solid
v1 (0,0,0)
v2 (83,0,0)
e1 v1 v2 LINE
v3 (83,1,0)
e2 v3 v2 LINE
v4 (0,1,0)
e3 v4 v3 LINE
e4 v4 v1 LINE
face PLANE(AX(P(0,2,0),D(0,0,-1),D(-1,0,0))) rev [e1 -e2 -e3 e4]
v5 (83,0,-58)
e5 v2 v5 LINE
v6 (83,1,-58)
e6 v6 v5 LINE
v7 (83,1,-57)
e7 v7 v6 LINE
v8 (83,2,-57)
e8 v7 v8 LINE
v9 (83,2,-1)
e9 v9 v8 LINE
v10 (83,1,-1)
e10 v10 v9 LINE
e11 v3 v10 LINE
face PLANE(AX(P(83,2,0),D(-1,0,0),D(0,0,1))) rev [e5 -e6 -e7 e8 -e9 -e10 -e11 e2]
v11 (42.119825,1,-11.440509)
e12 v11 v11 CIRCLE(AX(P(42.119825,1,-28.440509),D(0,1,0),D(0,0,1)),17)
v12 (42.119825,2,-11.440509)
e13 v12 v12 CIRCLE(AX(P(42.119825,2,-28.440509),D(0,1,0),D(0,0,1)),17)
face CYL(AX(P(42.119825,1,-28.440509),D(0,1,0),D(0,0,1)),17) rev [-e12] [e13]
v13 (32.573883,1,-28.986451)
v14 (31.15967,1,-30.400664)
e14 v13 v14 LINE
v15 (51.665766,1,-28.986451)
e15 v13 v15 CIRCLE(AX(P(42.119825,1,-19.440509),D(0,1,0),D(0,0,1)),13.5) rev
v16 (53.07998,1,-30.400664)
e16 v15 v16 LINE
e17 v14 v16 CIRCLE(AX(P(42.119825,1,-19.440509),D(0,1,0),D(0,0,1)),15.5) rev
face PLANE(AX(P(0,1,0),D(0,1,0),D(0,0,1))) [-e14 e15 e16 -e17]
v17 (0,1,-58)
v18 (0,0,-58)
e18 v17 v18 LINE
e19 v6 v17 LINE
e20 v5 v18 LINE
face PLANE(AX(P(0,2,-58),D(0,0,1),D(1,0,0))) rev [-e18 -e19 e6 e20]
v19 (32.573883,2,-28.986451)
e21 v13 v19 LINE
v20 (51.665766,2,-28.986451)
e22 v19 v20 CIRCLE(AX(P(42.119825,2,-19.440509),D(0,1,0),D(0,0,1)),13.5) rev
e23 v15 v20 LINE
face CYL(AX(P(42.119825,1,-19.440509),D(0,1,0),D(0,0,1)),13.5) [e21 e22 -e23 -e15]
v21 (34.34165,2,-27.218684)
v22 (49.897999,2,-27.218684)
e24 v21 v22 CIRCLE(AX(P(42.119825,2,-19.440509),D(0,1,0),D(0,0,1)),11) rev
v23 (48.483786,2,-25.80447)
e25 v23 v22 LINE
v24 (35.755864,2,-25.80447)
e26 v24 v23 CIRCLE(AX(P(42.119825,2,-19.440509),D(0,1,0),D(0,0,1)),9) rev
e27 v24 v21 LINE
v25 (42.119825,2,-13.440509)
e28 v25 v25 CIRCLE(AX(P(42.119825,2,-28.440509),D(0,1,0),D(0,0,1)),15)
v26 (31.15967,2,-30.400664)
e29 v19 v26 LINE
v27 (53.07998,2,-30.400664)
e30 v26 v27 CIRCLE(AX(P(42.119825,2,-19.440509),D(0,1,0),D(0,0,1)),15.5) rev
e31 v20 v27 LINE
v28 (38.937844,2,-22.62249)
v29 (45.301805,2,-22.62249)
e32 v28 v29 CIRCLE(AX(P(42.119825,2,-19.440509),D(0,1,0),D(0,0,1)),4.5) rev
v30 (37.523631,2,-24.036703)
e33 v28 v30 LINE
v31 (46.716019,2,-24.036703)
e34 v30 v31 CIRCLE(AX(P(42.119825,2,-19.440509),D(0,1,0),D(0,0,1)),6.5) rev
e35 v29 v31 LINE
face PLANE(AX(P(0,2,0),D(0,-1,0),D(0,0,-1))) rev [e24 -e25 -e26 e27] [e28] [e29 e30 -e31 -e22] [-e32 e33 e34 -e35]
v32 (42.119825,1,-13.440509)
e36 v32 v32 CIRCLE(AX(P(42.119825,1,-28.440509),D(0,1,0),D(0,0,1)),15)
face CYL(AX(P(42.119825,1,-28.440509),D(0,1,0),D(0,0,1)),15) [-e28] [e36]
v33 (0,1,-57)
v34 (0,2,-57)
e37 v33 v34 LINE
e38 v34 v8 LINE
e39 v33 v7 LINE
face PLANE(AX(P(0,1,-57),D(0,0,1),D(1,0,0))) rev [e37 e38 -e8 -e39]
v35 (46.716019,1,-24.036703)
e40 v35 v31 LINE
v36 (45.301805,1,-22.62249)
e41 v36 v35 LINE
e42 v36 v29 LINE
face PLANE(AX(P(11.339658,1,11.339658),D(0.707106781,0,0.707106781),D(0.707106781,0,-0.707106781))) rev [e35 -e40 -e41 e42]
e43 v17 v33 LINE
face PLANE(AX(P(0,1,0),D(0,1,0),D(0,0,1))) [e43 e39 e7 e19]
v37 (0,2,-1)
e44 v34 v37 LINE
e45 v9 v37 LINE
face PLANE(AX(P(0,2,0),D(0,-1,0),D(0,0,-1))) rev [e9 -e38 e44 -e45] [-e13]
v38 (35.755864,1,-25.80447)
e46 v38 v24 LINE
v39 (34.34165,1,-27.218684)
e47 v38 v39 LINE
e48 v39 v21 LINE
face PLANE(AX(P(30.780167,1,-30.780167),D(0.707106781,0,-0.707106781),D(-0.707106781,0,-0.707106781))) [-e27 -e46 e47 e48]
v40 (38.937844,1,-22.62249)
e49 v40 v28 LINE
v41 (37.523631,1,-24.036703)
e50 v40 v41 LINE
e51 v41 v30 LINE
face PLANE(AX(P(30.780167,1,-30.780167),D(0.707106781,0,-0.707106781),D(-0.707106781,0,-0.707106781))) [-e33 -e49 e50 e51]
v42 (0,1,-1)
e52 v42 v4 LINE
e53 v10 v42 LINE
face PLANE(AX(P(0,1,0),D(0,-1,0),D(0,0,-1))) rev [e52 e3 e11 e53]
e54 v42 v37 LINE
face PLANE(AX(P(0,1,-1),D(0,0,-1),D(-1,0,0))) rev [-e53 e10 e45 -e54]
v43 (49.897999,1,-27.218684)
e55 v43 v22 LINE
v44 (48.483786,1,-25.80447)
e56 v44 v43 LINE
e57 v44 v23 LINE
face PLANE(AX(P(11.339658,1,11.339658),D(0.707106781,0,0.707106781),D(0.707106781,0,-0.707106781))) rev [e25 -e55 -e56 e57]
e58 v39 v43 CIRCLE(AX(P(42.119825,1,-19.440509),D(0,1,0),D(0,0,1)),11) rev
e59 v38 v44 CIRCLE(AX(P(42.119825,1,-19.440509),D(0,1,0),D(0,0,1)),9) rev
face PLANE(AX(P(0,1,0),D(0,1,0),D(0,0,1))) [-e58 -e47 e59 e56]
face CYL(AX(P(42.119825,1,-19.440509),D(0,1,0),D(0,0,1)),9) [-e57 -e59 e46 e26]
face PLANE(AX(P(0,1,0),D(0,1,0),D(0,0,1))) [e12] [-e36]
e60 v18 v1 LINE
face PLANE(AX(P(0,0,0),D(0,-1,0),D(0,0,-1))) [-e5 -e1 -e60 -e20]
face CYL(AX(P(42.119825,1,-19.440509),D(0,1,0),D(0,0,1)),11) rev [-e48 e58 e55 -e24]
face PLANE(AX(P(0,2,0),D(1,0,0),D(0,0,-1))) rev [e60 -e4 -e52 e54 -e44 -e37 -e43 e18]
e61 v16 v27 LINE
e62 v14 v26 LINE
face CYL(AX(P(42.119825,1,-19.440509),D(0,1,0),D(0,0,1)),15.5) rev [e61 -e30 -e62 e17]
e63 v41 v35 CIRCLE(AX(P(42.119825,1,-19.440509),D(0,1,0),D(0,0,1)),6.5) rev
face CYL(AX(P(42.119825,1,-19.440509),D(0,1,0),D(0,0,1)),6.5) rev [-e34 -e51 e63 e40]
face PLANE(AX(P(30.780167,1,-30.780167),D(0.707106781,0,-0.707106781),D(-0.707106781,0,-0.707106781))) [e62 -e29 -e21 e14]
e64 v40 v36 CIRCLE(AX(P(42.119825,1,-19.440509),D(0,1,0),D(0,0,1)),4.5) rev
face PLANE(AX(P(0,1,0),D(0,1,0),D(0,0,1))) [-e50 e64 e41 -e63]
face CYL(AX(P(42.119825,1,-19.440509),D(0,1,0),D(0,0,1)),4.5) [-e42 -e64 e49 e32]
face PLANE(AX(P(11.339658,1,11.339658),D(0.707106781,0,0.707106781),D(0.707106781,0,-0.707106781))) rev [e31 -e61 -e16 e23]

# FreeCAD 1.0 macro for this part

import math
import FreeCAD as App
import Part
import Sketcher

V = App.Vector
Q = App.Units.Quantity

doc = App.newDocument("Part")
body = doc.addObject("PartDesign::Body", "Body")

# Sketch on XZ plane
sketch1 = body.newObject("Sketcher::SketchObject", "Sketch")
sketch1.AttachmentSupport = (doc.getObject("XZ_Plane"), [""])
sketch1.MapMode = "FlatFace"
sketch1.addGeometry(Part.LineSegment(V(0, -58, 0), V(0, 0, 0)), False)
sketch1.addGeometry(Part.LineSegment(V(0, 0, 0), V(83, 0, 0)), False)
sketch1.addGeometry(Part.LineSegment(V(83, 0, 0), V(83, -58, 0)), False)
sketch1.addGeometry(Part.LineSegment(V(83, -58, 0), V(0, -58, 0)), False)
sketch1.addConstraint(Sketcher.Constraint("Coincident", 0, 2, 1, 1))
sketch1.addConstraint(Sketcher.Constraint("Coincident", 1, 2, 2, 1))
sketch1.addConstraint(Sketcher.Constraint("Coincident", 2, 2, 3, 1))
sketch1.addConstraint(Sketcher.Constraint("Coincident", 3, 2, 0, 1))
sketch1.addConstraint(Sketcher.Constraint("Vertical", 0))
sketch1.addConstraint(Sketcher.Constraint("Horizontal", 1))
sketch1.addConstraint(Sketcher.Constraint("Vertical", 2))
sketch1.addConstraint(Sketcher.Constraint("Horizontal", 3))
sketch1.addConstraint(Sketcher.Constraint("Coincident", 0, 2, -1, 1))
sketch1.addConstraint(Sketcher.Constraint("DistanceX", 1, 1, 1, 2, Q("83 mm")))
sketch1.addConstraint(Sketcher.Constraint("DistanceY", 0, 1, 0, 2, Q("58 mm")))
pad1 = body.newObject("PartDesign::Pad", "Pad")
pad1.Profile = sketch1
pad1.Length = 2
pad1.Reversed = True

# Sketch on XZ plane
sketch2 = body.newObject("Sketcher::SketchObject", "Sketch001")
sketch2.AttachmentSupport = (doc.getObject("XZ_Plane"), [""])
sketch2.MapMode = "FlatFace"
sketch2.AttachmentOffset = App.Placement(V(0, 0, -2), App.Rotation())
sketch2.addGeometry(Part.LineSegment(V(0, -58, 0), V(0, -57, 0)), False)
sketch2.addGeometry(Part.LineSegment(V(0, -57, 0), V(83, -57, 0)), False)
sketch2.addGeometry(Part.LineSegment(V(83, -57, 0), V(83, -58, 0)), False)
sketch2.addGeometry(Part.LineSegment(V(83, -58, 0), V(0, -58, 0)), False)
sketch2.addGeometry(Part.LineSegment(V(0, -1, 0), V(0, 0, 0)), False)
sketch2.addGeometry(Part.LineSegment(V(0, 0, 0), V(83, 0, 0)), False)
sketch2.addGeometry(Part.LineSegment(V(83, 0, 0), V(83, -1, 0)), False)
sketch2.addGeometry(Part.LineSegment(V(83, -1, 0), V(0, -1, 0)), False)
sketch2.addConstraint(Sketcher.Constraint("Coincident", 0, 2, 1, 1))
sketch2.addConstraint(Sketcher.Constraint("Coincident", 1, 2, 2, 1))
sketch2.addConstraint(Sketcher.Constraint("Coincident", 2, 2, 3, 1))
sketch2.addConstraint(Sketcher.Constraint("Coincident", 3, 2, 0, 1))
sketch2.addConstraint(Sketcher.Constraint("Coincident", 4, 2, 5, 1))
sketch2.addConstraint(Sketcher.Constraint("Coincident", 5, 2, 6, 1))
sketch2.addConstraint(Sketcher.Constraint("Coincident", 6, 2, 7, 1))
sketch2.addConstraint(Sketcher.Constraint("Coincident", 7, 2, 4, 1))
sketch2.addConstraint(Sketcher.Constraint("Vertical", 0))
sketch2.addConstraint(Sketcher.Constraint("Horizontal", 1))
sketch2.addConstraint(Sketcher.Constraint("Vertical", 2))
sketch2.addConstraint(Sketcher.Constraint("Horizontal", 3))
sketch2.addConstraint(Sketcher.Constraint("Vertical", 4))
sketch2.addConstraint(Sketcher.Constraint("Horizontal", 5))
sketch2.addConstraint(Sketcher.Constraint("Vertical", 6))
sketch2.addConstraint(Sketcher.Constraint("Horizontal", 7))
sketch2.addConstraint(Sketcher.Constraint("Coincident", 4, 2, -1, 1))
sketch2.addConstraint(Sketcher.Constraint("PointOnObject", 0, 2, -2))
sketch2.addConstraint(Sketcher.Constraint("Vertical", 2, 2, 5, 2))
sketch2.addConstraint(Sketcher.Constraint("Equal", 2, 4))
sketch2.addConstraint(Sketcher.Constraint("DistanceX", 1, 1, 1, 2, Q("83 mm")))
sketch2.addConstraint(Sketcher.Constraint("DistanceY", 0, 1, 0, 2, Q("1 mm")))
sketch2.addConstraint(Sketcher.Constraint("DistanceY", 0, 2, -1, 1, Q("57 mm")))
pocket1 = body.newObject("PartDesign::Pocket", "Pocket")
pocket1.Profile = sketch2
pocket1.Length = 1
pocket1.Reversed = True

# Sketch on XZ plane
sketch3 = body.newObject("Sketcher::SketchObject", "Sketch002")
sketch3.AttachmentSupport = (doc.getObject("XZ_Plane"), [""])
sketch3.MapMode = "FlatFace"
sketch3.AttachmentOffset = App.Placement(V(0, 0, -2), App.Rotation())
sketch3.addGeometry(Part.Circle(V(42.1, -28.4, 0), V(0, 0, 1), 17), False)
sketch3.addGeometry(Part.Circle(V(42.1, -28.4, 0), V(0, 0, 1), 15), False)
sketch3.addGeometry(Part.ArcOfCircle(Part.Circle(V(42.1, -19.4, 0), V(0, 0, 1), 15.5), math.radians(-135), math.radians(-45)), False)
sketch3.addGeometry(Part.LineSegment(V(31.2, -30.4, 0), V(32.6, -29, 0)), False)
sketch3.addGeometry(Part.ArcOfCircle(Part.Circle(V(42.1, -19.4, 0), V(0, 0, 1), 13.5), math.radians(-135), math.radians(-45)), False)
sketch3.addGeometry(Part.LineSegment(V(51.7, -29, 0), V(53.1, -30.4, 0)), False)
sketch3.addGeometry(Part.LineSegment(V(34.3, -27.2, 0), V(35.8, -25.8, 0)), False)
sketch3.addGeometry(Part.ArcOfCircle(Part.Circle(V(42.1, -19.4, 0), V(0, 0, 1), 9), math.radians(-135), math.radians(-45)), False)
sketch3.addGeometry(Part.LineSegment(V(48.5, -25.8, 0), V(49.9, -27.2, 0)), False)
sketch3.addGeometry(Part.ArcOfCircle(Part.Circle(V(42.1, -19.4, 0), V(0, 0, 1), 11), math.radians(-135), math.radians(-45)), False)
sketch3.addGeometry(Part.LineSegment(V(37.5, -24, 0), V(38.9, -22.6, 0)), False)
sketch3.addGeometry(Part.ArcOfCircle(Part.Circle(V(42.1, -19.4, 0), V(0, 0, 1), 4.5), math.radians(-135), math.radians(-45)), False)
sketch3.addGeometry(Part.LineSegment(V(45.3, -22.6, 0), V(46.7, -24, 0)), False)
sketch3.addGeometry(Part.ArcOfCircle(Part.Circle(V(42.1, -19.4, 0), V(0, 0, 1), 6.5), math.radians(-135), math.radians(-45)), False)
sketch3.addConstraint(Sketcher.Constraint("Coincident", 2, 1, 3, 1))
sketch3.addConstraint(Sketcher.Constraint("Coincident", 3, 2, 4, 1))
sketch3.addConstraint(Sketcher.Constraint("Coincident", 4, 2, 5, 1))
sketch3.addConstraint(Sketcher.Constraint("Coincident", 5, 2, 2, 2))
sketch3.addConstraint(Sketcher.Constraint("Coincident", 6, 2, 7, 1))
sketch3.addConstraint(Sketcher.Constraint("Coincident", 7, 2, 8, 1))
sketch3.addConstraint(Sketcher.Constraint("Coincident", 8, 2, 9, 2))
sketch3.addConstraint(Sketcher.Constraint("Coincident", 9, 1, 6, 1))
sketch3.addConstraint(Sketcher.Constraint("Coincident", 10, 2, 11, 1))
sketch3.addConstraint(Sketcher.Constraint("Coincident", 11, 2, 12, 1))
sketch3.addConstraint(Sketcher.Constraint("Coincident", 12, 2, 13, 2))
sketch3.addConstraint(Sketcher.Constraint("Coincident", 13, 1, 10, 1))
sketch3.addConstraint(Sketcher.Constraint("Coincident", 1, 3, 0, 3))
sketch3.addConstraint(Sketcher.Constraint("Coincident", 4, 3, 2, 3))
sketch3.addConstraint(Sketcher.Constraint("Coincident", 7, 3, 2, 3))
sketch3.addConstraint(Sketcher.Constraint("Coincident", 9, 3, 2, 3))
sketch3.addConstraint(Sketcher.Constraint("Coincident", 11, 3, 2, 3))
sketch3.addConstraint(Sketcher.Constraint("Coincident", 13, 3, 2, 3))
sketch3.addConstraint(Sketcher.Constraint("Perpendicular", 3, 5))
sketch3.addConstraint(Sketcher.Constraint("Perpendicular", 5, 6))
sketch3.addConstraint(Sketcher.Constraint("Perpendicular", 6, 8))
sketch3.addConstraint(Sketcher.Constraint("Perpendicular", 8, 10))
sketch3.addConstraint(Sketcher.Constraint("Perpendicular", 10, 12))
sketch3.addConstraint(Sketcher.Constraint("Horizontal", 3, 2, 4, 2))
sketch3.addConstraint(Sketcher.Constraint("Horizontal", 2, 1, 5, 2))
sketch3.addConstraint(Sketcher.Constraint("Horizontal", 6, 2, 7, 2))
sketch3.addConstraint(Sketcher.Constraint("Horizontal", 10, 2, 11, 2))
sketch3.addConstraint(Sketcher.Constraint("Vertical", 1, 3, 2, 3))
sketch3.addConstraint(Sketcher.Constraint("Equal", 5, 6))
sketch3.addConstraint(Sketcher.Constraint("Equal", 8, 10))
sketch3.addConstraint(Sketcher.Constraint("Diameter", 0, Q("34 mm")))
sketch3.addConstraint(Sketcher.Constraint("Diameter", 1, Q("30 mm")))
sketch3.addConstraint(Sketcher.Constraint("Radius", 7, Q("9 mm")))
sketch3.addConstraint(Sketcher.Constraint("Radius", 9, Q("11 mm")))
sketch3.addConstraint(Sketcher.Constraint("Radius", 2, Q("15.5 mm")))
sketch3.addConstraint(Sketcher.Constraint("Radius", 11, Q("4.5 mm")))
sketch3.addConstraint(Sketcher.Constraint("DistanceY", 0, 3, 2, 3, Q("9 mm")))
sketch3.addConstraint(Sketcher.Constraint("DistanceX", -1, 1, 8, 2, Q("49.897999 mm")))
sketch3.addConstraint(Sketcher.Constraint("DistanceY", 0, 3, -1, 1, Q("28.440509 mm")))
sketch3.addConstraint(Sketcher.Constraint("DistanceX", -1, 1, 2, 1, Q("31.15967 mm")))
sketch3.addConstraint(Sketcher.Constraint("DistanceY", 3, 2, -1, 1, Q("28.986451 mm")))
sketch3.addConstraint(Sketcher.Constraint("DistanceY", 10, 2, -1, 1, Q("22.62249 mm")))
pocket2 = body.newObject("PartDesign::Pocket", "Pocket001")
pocket2.Profile = sketch3
pocket2.Length = 1
pocket2.Reversed = True

doc.recompute()
